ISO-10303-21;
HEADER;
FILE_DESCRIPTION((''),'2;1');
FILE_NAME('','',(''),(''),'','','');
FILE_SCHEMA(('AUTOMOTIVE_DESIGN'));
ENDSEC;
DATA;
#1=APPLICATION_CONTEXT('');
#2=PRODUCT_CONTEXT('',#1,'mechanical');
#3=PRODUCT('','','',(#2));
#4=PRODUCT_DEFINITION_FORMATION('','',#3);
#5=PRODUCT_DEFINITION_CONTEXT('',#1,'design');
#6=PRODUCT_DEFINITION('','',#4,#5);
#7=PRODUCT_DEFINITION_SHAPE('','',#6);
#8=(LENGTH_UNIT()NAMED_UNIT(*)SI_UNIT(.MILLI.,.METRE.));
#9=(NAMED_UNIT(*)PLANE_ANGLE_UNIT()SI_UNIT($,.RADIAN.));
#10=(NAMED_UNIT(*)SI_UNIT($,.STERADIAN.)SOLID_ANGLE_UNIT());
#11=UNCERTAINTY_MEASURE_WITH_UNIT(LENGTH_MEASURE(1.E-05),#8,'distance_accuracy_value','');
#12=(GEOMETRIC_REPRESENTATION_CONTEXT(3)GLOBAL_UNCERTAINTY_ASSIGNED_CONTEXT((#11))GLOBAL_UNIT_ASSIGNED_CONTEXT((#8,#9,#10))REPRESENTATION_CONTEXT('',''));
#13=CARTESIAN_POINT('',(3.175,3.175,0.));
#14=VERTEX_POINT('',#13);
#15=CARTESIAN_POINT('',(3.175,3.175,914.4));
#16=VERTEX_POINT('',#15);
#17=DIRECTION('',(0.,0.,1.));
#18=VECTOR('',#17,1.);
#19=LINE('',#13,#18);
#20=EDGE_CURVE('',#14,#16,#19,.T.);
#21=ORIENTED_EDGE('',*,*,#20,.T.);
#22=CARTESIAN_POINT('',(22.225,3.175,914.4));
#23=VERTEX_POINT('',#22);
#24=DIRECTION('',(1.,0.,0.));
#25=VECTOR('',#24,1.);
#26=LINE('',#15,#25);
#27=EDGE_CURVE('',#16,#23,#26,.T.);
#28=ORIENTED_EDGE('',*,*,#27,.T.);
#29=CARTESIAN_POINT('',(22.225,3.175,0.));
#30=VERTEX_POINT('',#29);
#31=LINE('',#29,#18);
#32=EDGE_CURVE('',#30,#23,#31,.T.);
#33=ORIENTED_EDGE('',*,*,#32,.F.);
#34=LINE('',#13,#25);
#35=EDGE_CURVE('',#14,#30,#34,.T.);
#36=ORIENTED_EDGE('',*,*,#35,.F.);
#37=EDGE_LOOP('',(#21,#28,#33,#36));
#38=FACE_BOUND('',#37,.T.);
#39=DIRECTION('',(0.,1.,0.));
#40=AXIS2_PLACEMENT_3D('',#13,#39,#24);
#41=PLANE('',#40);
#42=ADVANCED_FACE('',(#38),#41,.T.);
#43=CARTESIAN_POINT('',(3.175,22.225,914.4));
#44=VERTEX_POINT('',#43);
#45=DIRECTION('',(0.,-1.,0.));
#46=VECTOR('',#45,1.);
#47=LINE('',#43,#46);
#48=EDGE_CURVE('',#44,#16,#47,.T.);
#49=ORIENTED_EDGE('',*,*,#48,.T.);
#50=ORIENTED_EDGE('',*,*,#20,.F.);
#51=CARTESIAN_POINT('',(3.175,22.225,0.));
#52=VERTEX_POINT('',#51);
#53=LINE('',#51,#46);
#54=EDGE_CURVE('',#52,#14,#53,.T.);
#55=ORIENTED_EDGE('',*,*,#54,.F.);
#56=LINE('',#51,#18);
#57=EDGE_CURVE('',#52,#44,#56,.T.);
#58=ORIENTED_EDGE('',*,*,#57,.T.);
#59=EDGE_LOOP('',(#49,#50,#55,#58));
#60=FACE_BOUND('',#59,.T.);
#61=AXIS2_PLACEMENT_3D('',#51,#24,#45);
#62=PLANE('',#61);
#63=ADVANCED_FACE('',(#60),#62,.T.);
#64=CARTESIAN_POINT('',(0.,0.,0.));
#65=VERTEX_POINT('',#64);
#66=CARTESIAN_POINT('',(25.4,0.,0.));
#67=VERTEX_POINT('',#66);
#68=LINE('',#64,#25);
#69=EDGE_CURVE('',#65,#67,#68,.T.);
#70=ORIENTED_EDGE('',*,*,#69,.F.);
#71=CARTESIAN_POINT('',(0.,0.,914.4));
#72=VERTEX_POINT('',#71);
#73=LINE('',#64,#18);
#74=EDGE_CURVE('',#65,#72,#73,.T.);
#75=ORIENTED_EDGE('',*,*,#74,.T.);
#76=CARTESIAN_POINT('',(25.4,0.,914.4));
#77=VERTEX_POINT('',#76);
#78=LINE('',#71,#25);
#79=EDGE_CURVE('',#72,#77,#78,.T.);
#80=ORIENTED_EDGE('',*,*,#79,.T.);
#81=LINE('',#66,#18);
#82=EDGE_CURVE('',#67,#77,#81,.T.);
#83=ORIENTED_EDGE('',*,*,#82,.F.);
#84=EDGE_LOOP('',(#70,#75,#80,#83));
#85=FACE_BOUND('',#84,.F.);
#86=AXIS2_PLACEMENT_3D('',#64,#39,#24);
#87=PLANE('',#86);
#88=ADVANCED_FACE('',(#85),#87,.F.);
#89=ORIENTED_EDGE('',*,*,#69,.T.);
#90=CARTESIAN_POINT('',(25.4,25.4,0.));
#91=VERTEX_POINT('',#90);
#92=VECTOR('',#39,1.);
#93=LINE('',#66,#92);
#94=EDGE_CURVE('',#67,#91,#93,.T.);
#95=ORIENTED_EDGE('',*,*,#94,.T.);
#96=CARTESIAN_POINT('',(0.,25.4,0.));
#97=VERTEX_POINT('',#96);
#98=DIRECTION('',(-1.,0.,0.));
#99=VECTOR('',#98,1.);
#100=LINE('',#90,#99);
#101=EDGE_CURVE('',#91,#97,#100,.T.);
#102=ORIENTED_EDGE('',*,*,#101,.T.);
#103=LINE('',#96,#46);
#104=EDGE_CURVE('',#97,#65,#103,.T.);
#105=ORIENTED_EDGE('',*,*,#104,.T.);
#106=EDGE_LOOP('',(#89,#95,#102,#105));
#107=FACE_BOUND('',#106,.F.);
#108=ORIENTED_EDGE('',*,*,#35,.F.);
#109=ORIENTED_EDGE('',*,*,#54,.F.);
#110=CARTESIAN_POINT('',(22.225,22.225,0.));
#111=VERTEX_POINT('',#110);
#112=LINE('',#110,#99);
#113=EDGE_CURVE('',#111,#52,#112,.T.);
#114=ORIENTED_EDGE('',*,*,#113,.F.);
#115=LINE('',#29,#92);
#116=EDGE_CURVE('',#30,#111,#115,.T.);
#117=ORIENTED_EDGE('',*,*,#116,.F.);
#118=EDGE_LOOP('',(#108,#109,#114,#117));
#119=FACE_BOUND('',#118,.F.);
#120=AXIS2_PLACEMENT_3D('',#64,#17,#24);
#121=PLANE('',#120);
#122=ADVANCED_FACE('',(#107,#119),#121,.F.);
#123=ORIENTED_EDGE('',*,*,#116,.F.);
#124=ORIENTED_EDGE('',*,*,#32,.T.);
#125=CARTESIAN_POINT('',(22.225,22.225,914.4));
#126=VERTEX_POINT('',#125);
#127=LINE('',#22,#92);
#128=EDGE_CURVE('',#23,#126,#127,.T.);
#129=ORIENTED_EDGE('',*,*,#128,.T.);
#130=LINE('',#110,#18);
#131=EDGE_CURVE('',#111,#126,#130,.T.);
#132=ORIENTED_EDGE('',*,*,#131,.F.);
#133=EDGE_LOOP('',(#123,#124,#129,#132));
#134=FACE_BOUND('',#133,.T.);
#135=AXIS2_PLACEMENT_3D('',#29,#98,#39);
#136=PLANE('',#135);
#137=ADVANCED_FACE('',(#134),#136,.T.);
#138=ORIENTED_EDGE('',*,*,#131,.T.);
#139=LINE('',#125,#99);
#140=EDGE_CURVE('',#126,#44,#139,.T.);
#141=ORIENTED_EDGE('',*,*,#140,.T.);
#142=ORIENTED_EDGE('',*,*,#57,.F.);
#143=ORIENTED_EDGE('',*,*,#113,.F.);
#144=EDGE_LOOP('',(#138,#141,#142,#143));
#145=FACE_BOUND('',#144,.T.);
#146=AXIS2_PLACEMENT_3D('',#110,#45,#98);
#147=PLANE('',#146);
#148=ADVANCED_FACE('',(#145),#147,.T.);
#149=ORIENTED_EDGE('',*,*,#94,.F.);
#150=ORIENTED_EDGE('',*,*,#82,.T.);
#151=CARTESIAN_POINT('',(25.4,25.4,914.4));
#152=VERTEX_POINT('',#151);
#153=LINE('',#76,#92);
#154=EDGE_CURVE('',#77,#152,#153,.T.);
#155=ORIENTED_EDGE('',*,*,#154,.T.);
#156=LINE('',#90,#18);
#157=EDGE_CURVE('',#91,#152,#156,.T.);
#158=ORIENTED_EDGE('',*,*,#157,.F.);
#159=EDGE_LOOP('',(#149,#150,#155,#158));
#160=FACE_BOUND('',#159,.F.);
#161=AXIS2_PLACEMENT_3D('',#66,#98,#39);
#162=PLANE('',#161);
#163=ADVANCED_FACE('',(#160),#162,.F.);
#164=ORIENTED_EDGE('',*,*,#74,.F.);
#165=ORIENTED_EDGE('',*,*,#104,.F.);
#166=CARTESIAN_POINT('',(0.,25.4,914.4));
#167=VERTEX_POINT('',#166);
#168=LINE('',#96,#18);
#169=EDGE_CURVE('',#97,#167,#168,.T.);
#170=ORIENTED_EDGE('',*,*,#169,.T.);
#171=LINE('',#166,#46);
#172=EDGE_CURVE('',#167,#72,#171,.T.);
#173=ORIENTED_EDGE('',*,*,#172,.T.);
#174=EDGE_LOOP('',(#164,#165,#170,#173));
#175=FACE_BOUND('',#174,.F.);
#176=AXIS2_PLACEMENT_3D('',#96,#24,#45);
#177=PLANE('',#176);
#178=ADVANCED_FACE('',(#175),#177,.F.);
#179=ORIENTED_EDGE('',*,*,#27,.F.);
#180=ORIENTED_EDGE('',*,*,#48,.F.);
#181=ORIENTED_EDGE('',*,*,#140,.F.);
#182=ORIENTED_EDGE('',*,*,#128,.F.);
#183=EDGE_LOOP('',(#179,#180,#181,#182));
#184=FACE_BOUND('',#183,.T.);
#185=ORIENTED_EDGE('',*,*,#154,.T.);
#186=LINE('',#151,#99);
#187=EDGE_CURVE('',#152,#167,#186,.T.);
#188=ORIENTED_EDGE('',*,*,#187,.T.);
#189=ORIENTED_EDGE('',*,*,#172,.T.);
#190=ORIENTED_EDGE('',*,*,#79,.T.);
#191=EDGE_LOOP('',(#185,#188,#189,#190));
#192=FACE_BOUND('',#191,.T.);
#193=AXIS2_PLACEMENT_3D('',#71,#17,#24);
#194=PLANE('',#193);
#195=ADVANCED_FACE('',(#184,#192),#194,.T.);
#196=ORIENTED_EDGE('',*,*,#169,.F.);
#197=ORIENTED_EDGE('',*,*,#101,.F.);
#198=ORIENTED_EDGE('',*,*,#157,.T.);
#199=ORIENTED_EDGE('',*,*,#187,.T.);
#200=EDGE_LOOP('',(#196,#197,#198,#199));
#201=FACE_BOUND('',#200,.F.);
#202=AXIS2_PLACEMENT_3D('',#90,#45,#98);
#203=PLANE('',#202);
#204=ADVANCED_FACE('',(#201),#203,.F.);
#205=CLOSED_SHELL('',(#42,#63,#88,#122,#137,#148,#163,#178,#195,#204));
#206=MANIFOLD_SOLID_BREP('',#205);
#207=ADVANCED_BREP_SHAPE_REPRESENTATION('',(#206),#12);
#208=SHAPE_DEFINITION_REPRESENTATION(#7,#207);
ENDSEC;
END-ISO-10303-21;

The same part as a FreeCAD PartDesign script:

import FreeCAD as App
import Part
import Sketcher
from FreeCAD import Vector
Q = App.Units.Quantity


def add_polygon(sketch, points):
    """Adds a closed chain of lines whose ends are joined by coincident constraints."""
    first, n = sketch.GeometryCount, len(points)
    for a, b in zip(points, points[1:] + points[:1]):
        sketch.addGeometry(Part.LineSegment(App.Vector(*a, 0), App.Vector(*b, 0)), False)
    for i in range(n):
        sketch.addConstraint(Sketcher.Constraint("Coincident", first + i, 2, first + (i + 1) % n, 1))

doc = App.newDocument("Part")
body = doc.addObject("PartDesign::Body", "Body")

# Sketch on XY plane
sketch1 = body.newObject("Sketcher::SketchObject", "Sketch")
sketch1.AttachmentSupport = (doc.getObject("XY_Plane"), [""])
sketch1.MapMode = "FlatFace"
add_polygon(sketch1, [(0, 25.4), (0, 0), (25.4, 0), (25.4, 25.4)])  # lines 0-3
add_polygon(sketch1, [(22.225, 3.175), (3.175, 3.175), (3.175, 22.225), (22.225, 22.225)])  # lines 4-7
sketch1.addConstraint(Sketcher.Constraint("Vertical", 0))
sketch1.addConstraint(Sketcher.Constraint("Horizontal", 1))
sketch1.addConstraint(Sketcher.Constraint("Vertical", 2))
sketch1.addConstraint(Sketcher.Constraint("Horizontal", 3))
sketch1.addConstraint(Sketcher.Constraint("Horizontal", 4))
sketch1.addConstraint(Sketcher.Constraint("Vertical", 5))
sketch1.addConstraint(Sketcher.Constraint("Horizontal", 6))
sketch1.addConstraint(Sketcher.Constraint("Vertical", 7))
sketch1.addConstraint(Sketcher.Constraint("Coincident", 0, 2, -1, 1))
sketch1.addConstraint(Sketcher.Constraint("Equal", 3, 0))
sketch1.addConstraint(Sketcher.Constraint("Equal", 6, 5))
sketch1.addConstraint(Sketcher.Constraint("DistanceX", 1, 1, 1, 2, Q("1 in")))
sketch1.addConstraint(Sketcher.Constraint("DistanceX", -1, 1, 4, 2, Q("0.125 in")))
sketch1.addConstraint(Sketcher.Constraint("DistanceY", -1, 1, 4, 2, Q("0.125 in")))
sketch1.addConstraint(Sketcher.Constraint("DistanceY", 5, 2, 3, 2, Q("0.125 in")))
pad1 = body.newObject("PartDesign::Pad", "Pad")
pad1.Profile = sketch1
pad1.Length = Q("36 in")

doc.recompute()
